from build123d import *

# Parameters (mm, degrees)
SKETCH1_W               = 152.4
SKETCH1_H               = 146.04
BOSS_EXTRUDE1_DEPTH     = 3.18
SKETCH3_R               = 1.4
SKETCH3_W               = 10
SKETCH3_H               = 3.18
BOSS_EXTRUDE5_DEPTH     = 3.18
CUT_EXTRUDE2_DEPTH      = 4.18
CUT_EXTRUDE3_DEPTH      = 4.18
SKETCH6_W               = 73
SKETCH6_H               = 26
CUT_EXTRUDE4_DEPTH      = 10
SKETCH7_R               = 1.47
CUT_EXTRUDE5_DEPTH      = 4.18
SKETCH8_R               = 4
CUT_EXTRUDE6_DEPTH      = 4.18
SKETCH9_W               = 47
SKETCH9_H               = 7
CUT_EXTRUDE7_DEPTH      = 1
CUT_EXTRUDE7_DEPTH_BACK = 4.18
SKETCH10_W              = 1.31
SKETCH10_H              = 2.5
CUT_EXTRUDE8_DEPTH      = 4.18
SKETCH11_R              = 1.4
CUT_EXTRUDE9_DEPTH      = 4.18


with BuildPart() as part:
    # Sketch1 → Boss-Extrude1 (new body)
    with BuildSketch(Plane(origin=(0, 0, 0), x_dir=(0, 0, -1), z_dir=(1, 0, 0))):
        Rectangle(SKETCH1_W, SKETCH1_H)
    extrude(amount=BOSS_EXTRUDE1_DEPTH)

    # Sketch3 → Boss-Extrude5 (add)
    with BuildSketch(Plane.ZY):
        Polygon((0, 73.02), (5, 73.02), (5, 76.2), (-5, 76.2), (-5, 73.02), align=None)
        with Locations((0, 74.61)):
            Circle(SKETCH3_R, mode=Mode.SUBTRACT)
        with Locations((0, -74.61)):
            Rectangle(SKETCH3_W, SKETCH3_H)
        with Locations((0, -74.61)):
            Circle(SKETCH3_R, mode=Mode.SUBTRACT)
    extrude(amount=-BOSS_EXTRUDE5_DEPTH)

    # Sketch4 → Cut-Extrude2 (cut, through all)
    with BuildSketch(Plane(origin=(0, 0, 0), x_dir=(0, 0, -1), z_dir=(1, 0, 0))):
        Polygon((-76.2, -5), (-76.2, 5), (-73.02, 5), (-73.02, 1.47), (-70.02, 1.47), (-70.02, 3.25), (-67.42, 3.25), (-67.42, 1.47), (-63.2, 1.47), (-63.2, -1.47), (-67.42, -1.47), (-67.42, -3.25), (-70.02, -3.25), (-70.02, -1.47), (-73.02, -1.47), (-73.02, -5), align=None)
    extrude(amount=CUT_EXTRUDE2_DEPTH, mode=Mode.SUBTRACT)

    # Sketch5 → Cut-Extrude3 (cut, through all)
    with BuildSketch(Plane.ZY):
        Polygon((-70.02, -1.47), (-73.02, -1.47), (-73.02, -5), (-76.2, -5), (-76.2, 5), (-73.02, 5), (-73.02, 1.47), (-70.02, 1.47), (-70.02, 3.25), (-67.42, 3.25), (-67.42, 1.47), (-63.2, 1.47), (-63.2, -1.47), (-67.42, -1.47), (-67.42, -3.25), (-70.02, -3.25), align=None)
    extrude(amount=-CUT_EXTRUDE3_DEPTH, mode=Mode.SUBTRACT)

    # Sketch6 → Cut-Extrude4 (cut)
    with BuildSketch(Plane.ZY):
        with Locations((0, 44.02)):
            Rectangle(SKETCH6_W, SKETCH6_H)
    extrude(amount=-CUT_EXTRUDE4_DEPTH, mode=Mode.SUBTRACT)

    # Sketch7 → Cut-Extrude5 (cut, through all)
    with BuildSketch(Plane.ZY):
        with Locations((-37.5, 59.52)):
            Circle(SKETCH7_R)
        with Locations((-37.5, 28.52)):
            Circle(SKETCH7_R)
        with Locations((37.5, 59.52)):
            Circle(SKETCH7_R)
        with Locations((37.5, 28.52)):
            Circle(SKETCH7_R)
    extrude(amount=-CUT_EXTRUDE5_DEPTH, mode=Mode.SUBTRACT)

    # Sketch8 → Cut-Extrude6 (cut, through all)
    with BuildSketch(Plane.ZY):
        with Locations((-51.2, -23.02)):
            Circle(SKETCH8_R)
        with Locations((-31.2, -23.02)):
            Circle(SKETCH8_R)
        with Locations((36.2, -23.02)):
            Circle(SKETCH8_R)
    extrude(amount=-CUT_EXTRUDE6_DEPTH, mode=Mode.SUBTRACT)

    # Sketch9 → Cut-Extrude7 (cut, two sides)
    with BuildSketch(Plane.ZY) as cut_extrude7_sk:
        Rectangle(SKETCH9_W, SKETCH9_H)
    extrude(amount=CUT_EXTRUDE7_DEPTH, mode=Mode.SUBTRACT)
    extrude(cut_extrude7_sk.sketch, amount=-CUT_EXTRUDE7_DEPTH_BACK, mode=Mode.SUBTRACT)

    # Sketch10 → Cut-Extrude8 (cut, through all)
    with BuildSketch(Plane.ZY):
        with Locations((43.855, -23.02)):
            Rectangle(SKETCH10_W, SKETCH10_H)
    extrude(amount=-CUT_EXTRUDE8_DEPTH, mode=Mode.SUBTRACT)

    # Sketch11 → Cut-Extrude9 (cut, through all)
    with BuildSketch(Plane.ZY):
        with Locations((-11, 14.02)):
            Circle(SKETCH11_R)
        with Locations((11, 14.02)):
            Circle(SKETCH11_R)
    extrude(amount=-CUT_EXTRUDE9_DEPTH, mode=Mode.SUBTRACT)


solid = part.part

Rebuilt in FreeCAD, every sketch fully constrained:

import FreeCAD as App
import Part
import Sketcher

V = App.Vector
Q = App.Units.Quantity


def add_polygon(sketch, points):
    """Adds a closed chain of lines whose ends are joined by coincident constraints."""
    first, n = sketch.GeometryCount, len(points)
    for a, b in zip(points, points[1:] + points[:1]):
        sketch.addGeometry(Part.LineSegment(App.Vector(*a, 0), App.Vector(*b, 0)), False)
    for i in range(n):
        sketch.addConstraint(Sketcher.Constraint("Coincident", first + i, 2, first + (i + 1) % n, 1))

doc = App.newDocument("Part")
params = doc.addObject("Spreadsheet::Sheet", "Params")
for row, (alias, value) in enumerate([
    ("sketch1_height", "152.4 mm"),
    ("sketch1_width", "146.04 mm"),
    ("pad1_length", "3.18 mm"),
    ("sketch2_diameter", "2.8 mm"),
    ("sketch2_height", "10 mm"),
    ("sketch2_width", "3.18 mm"),
    ("pad2_length", "3.18 mm"),
    ("sketch3_width", "10 mm"),
    ("sketch3_height", "3 mm"),
    ("sketch3_height2", "2.6 mm"),
    ("sketch3_width2", "3.53 mm"),
    ("sketch3_width3", "1.78 mm"),
    ("sketch4_width", "10 mm"),
    ("sketch4_height", "3 mm"),
    ("sketch4_height2", "2.6 mm"),
    ("sketch4_width2", "1.78 mm"),
    ("sketch4_width3", "2.94 mm"),
    ("sketch5_width", "26 mm"),
    ("sketch5_height", "73 mm"),
    ("pocket3_length", "10 mm"),
    ("sketch6_diameter", "2.94 mm"),
    ("sketch7_diameter", "8 mm"),
    ("sketch8_width", "7 mm"),
    ("sketch8_height", "47 mm"),
    ("sketch9_width", "2.5 mm"),
    ("sketch9_height", "1.31 mm"),
    ("sketch10_diameter", "2.8 mm"),
], start=1):
    params.set(f"A{row}", alias)
    params.set(f"B{row}", "=" + value)
    params.setAlias(f"B{row}", alias)

body = doc.addObject("PartDesign::Body", "Body")

sketch1 = doc.addObject("Sketcher::SketchObject", "Sketch")
body.addObject(sketch1)
sketch1.AttachmentSupport = (doc.YZ_Plane, [""])
sketch1.MapMode = "FlatFace"
add_polygon(sketch1, [(73, 76), (-73, 76), (-73, -76), (73, -76)])
sketch1.addConstraint(Sketcher.Constraint("Horizontal", 0))
sketch1.addConstraint(Sketcher.Constraint("Vertical", 1))
sketch1.addConstraint(Sketcher.Constraint("Horizontal", 2))
sketch1.addConstraint(Sketcher.Constraint("Vertical", 3))
sketch1.addConstraint(Sketcher.Constraint("Symmetric", 0, 2, 2, 2, -1, 1))
sketch1.addConstraint(Sketcher.Constraint("DistanceY", 1, 2, 1, 1, Q("152.4 mm")))
sketch1.addConstraint(Sketcher.Constraint("DistanceX", 0, 2, 0, 1, Q("146.04 mm")))
sketch1.setExpression("Constraints[9]", "Params.sketch1_height")
sketch1.setExpression("Constraints[10]", "Params.sketch1_width")
pad1 = doc.addObject("PartDesign::Pad", "Pad")
body.addObject(pad1)
pad1.Profile = sketch1
pad1.setExpression("Length", "Params.pad1_length")

sketch2 = doc.addObject("Sketcher::SketchObject", "Sketch001")
body.addObject(sketch2)
sketch2.AttachmentSupport = (doc.YZ_Plane, [""])
sketch2.MapMode = "FlatFace"
add_polygon(sketch2, [(73, 5), (76.2, 5), (76.2, -5), (73, -5)])
sketch2.addGeometry(Part.Circle(V(74.6, 0, 0), V(0, 0, 1), 1.4), False)
add_polygon(sketch2, [(-73, -5), (-76.2, -5), (-76.2, 5), (-73, 5)])
sketch2.addGeometry(Part.Circle(V(-74.6, 0, 0), V(0, 0, 1), 1.4), False)
sketch2.addConstraint(Sketcher.Constraint("Horizontal", 0))
sketch2.addConstraint(Sketcher.Constraint("Vertical", 1))
sketch2.addConstraint(Sketcher.Constraint("Horizontal", 2))
sketch2.addConstraint(Sketcher.Constraint("Vertical", 3))
sketch2.addConstraint(Sketcher.Constraint("Horizontal", 5))
sketch2.addConstraint(Sketcher.Constraint("Vertical", 6))
sketch2.addConstraint(Sketcher.Constraint("Horizontal", 7))
sketch2.addConstraint(Sketcher.Constraint("Vertical", 8))
sketch2.addConstraint(Sketcher.Constraint("Equal", 4, 9))
sketch2.addConstraint(Sketcher.Constraint("Symmetric", 4, 3, 9, 3, -1, 1))
sketch2.addConstraint(Sketcher.Constraint("Symmetric", 0, 2, 5, 2, -1, 1))
sketch2.addConstraint(Sketcher.Constraint("Symmetric", 2, 2, 7, 2, -1, 1))
sketch2.addConstraint(Sketcher.Constraint("PointOnObject", 4, 3, -1))
sketch2.addConstraint(Sketcher.Constraint("Horizontal", 2, 2, 5, 2))
sketch2.addConstraint(Sketcher.Constraint("Diameter", 4, Q("2.8 mm")))
sketch2.addConstraint(Sketcher.Constraint("DistanceY", 1, 2, 1, 1, Q("10 mm")))
sketch2.addConstraint(Sketcher.Constraint("DistanceX", 0, 1, 0, 2, Q("3.18 mm")))
sketch2.addConstraint(Sketcher.Constraint("DistanceX", -1, 1, 0, 2, Q("76.2 mm")))
sketch2.addConstraint(Sketcher.Constraint("DistanceX", -1, 1, 4, 3, Q("74.61 mm")))
sketch2.setExpression("Constraints[22]", "Params.sketch2_diameter")
sketch2.setExpression("Constraints[23]", "Params.sketch2_height")
sketch2.setExpression("Constraints[24]", "Params.sketch2_width")
pad2 = doc.addObject("PartDesign::Pad", "Pad001")
body.addObject(pad2)
pad2.Profile = sketch2
pad2.setExpression("Length", "Params.pad2_length")

sketch3 = doc.addObject("Sketcher::SketchObject", "Sketch002")
body.addObject(sketch3)
sketch3.AttachmentSupport = (doc.YZ_Plane, [""])
sketch3.MapMode = "FlatFace"
add_polygon(sketch3, [(5, 76.2), (-5, 76.2), (-5, 73), (-1.5, 73), (-1.5, 70), (-3.2, 70), (-3.2, 67.4), (-1.5, 67.4), (-1.5, 63.2), (1.5, 63.2), (1.5, 67.4), (3.2, 67.4), (3.2, 70), (1.5, 70), (1.5, 73), (5, 73)])
sketch3.addConstraint(Sketcher.Constraint("Horizontal", 0))
sketch3.addConstraint(Sketcher.Constraint("Vertical", 1))
sketch3.addConstraint(Sketcher.Constraint("Horizontal", 2))
sketch3.addConstraint(Sketcher.Constraint("Vertical", 3))
sketch3.addConstraint(Sketcher.Constraint("Horizontal", 4))
sketch3.addConstraint(Sketcher.Constraint("Vertical", 5))
sketch3.addConstraint(Sketcher.Constraint("Horizontal", 6))
sketch3.addConstraint(Sketcher.Constraint("Vertical", 7))
sketch3.addConstraint(Sketcher.Constraint("Horizontal", 8))
sketch3.addConstraint(Sketcher.Constraint("Vertical", 9))
sketch3.addConstraint(Sketcher.Constraint("Horizontal", 10))
sketch3.addConstraint(Sketcher.Constraint("Vertical", 11))
sketch3.addConstraint(Sketcher.Constraint("Horizontal", 12))
sketch3.addConstraint(Sketcher.Constraint("Vertical", 13))
sketch3.addConstraint(Sketcher.Constraint("Horizontal", 14))
sketch3.addConstraint(Sketcher.Constraint("Vertical", 15))
sketch3.addConstraint(Sketcher.Constraint("Symmetric", 6, 2, 9, 2, -2))
sketch3.addConstraint(Sketcher.Constraint("Symmetric", 4, 2, 11, 2, -2))
sketch3.addConstraint(Sketcher.Constraint("Symmetric", 2, 2, 13, 2, -2))
sketch3.addConstraint(Sketcher.Constraint("Vertical", 3, 2, 6, 2))
sketch3.addConstraint(Sketcher.Constraint("Equal", 2, 14))
sketch3.addConstraint(Sketcher.Constraint("DistanceX", 0, 2, 0, 1, Q("10 mm")))
sketch3.addConstraint(Sketcher.Constraint("DistanceY", 3, 2, 3, 1, Q("3 mm")))
sketch3.addConstraint(Sketcher.Constraint("DistanceY", 5, 2, 5, 1, Q("2.6 mm")))
sketch3.addConstraint(Sketcher.Constraint("DistanceX", 2, 1, 2, 2, Q("3.53 mm")))
sketch3.addConstraint(Sketcher.Constraint("DistanceX", 4, 2, 4, 1, Q("1.78 mm")))
sketch3.addConstraint(Sketcher.Constraint("DistanceY", 1, 2, 1, 1, Q("3.18 mm")))
sketch3.addConstraint(Sketcher.Constraint("DistanceY", 7, 2, 7, 1, Q("4.22 mm")))
sketch3.addConstraint(Sketcher.Constraint("DistanceY", -1, 1, 0, 2, Q("76.2 mm")))
sketch3.setExpression("Constraints[37]", "Params.sketch3_width")
sketch3.setExpression("Constraints[38]", "Params.sketch3_height")
sketch3.setExpression("Constraints[39]", "Params.sketch3_height2")
sketch3.setExpression("Constraints[40]", "Params.sketch3_width2")
sketch3.setExpression("Constraints[41]", "Params.sketch3_width3")
pocket1 = doc.addObject("PartDesign::Pocket", "Pocket")
body.addObject(pocket1)
pocket1.Profile = sketch3
pocket1.Type = "ThroughAll"
pocket1.Reversed = True

sketch4 = doc.addObject("Sketcher::SketchObject", "Sketch003")
body.addObject(sketch4)
sketch4.AttachmentSupport = (doc.YZ_Plane, [""])
sketch4.MapMode = "FlatFace"
add_polygon(sketch4, [(-1.5, -73), (-1.5, -70), (-3.2, -70), (-3.2, -67.4), (-1.5, -67.4), (-1.5, -63.2), (1.5, -63.2), (1.5, -67.4), (3.2, -67.4), (3.2, -70), (1.5, -70), (1.5, -73), (5, -73), (5, -76.2), (-5, -76.2), (-5, -73)])
sketch4.addConstraint(Sketcher.Constraint("Vertical", 0))
sketch4.addConstraint(Sketcher.Constraint("Horizontal", 1))
sketch4.addConstraint(Sketcher.Constraint("Vertical", 2))
sketch4.addConstraint(Sketcher.Constraint("Horizontal", 3))
sketch4.addConstraint(Sketcher.Constraint("Vertical", 4))
sketch4.addConstraint(Sketcher.Constraint("Horizontal", 5))
sketch4.addConstraint(Sketcher.Constraint("Vertical", 6))
sketch4.addConstraint(Sketcher.Constraint("Horizontal", 7))
sketch4.addConstraint(Sketcher.Constraint("Vertical", 8))
sketch4.addConstraint(Sketcher.Constraint("Horizontal", 9))
sketch4.addConstraint(Sketcher.Constraint("Vertical", 10))
sketch4.addConstraint(Sketcher.Constraint("Horizontal", 11))
sketch4.addConstraint(Sketcher.Constraint("Vertical", 12))
sketch4.addConstraint(Sketcher.Constraint("Horizontal", 13))
sketch4.addConstraint(Sketcher.Constraint("Vertical", 14))
sketch4.addConstraint(Sketcher.Constraint("Horizontal", 15))
sketch4.addConstraint(Sketcher.Constraint("Symmetric", 3, 2, 6, 2, -2))
sketch4.addConstraint(Sketcher.Constraint("Symmetric", 1, 2, 8, 2, -2))
sketch4.addConstraint(Sketcher.Constraint("Symmetric", 11, 2, 14, 2, -2))
sketch4.addConstraint(Sketcher.Constraint("Vertical", 0, 2, 3, 2))
sketch4.addConstraint(Sketcher.Constraint("Vertical", 6, 2, 9, 2))
sketch4.addConstraint(Sketcher.Constraint("DistanceX", 13, 2, 13, 1, Q("10 mm")))
sketch4.addConstraint(Sketcher.Constraint("DistanceY", 0, 1, 0, 2, Q("3 mm")))
sketch4.addConstraint(Sketcher.Constraint("DistanceY", 2, 1, 2, 2, Q("2.6 mm")))
sketch4.addConstraint(Sketcher.Constraint("DistanceX", 1, 2, 1, 1, Q("1.78 mm")))
sketch4.addConstraint(Sketcher.Constraint("DistanceX", 5, 1, 5, 2, Q("2.94 mm")))
sketch4.addConstraint(Sketcher.Constraint("DistanceY", 4, 1, 4, 2, Q("4.22 mm")))
sketch4.addConstraint(Sketcher.Constraint("DistanceY", 12, 2, 12, 1, Q("3.18 mm")))
sketch4.addConstraint(Sketcher.Constraint("DistanceY", 4, 2, -1, 1, Q("63.2 mm")))
sketch4.setExpression("Constraints[37]", "Params.sketch4_width")
sketch4.setExpression("Constraints[38]", "Params.sketch4_height")
sketch4.setExpression("Constraints[39]", "Params.sketch4_height2")
sketch4.setExpression("Constraints[40]", "Params.sketch4_width2")
sketch4.setExpression("Constraints[41]", "Params.sketch4_width3")
pocket2 = doc.addObject("PartDesign::Pocket", "Pocket001")
body.addObject(pocket2)
pocket2.Profile = sketch4
pocket2.Type = "ThroughAll"
pocket2.Reversed = True

sketch5 = doc.addObject("Sketcher::SketchObject", "Sketch004")
body.addObject(sketch5)
sketch5.AttachmentSupport = (doc.YZ_Plane, [""])
sketch5.MapMode = "FlatFace"
add_polygon(sketch5, [(57, -36), (31, -36), (31, 36), (57, 36)])
sketch5.addConstraint(Sketcher.Constraint("Horizontal", 0))
sketch5.addConstraint(Sketcher.Constraint("Vertical", 1))
sketch5.addConstraint(Sketcher.Constraint("Horizontal", 2))
sketch5.addConstraint(Sketcher.Constraint("Vertical", 3))
sketch5.addConstraint(Sketcher.Constraint("DistanceX", 0, 2, 0, 1, Q("26 mm")))
sketch5.addConstraint(Sketcher.Constraint("DistanceY", 1, 1, 1, 2, Q("73 mm")))
sketch5.addConstraint(Sketcher.Constraint("DistanceY", 0, 2, -1, 1, Q("36.5 mm")))
sketch5.addConstraint(Sketcher.Constraint("DistanceX", -1, 1, 0, 2, Q("31.02 mm")))
sketch5.setExpression("Constraints[8]", "Params.sketch5_width")
sketch5.setExpression("Constraints[9]", "Params.sketch5_height")
pocket3 = doc.addObject("PartDesign::Pocket", "Pocket002")
body.addObject(pocket3)
pocket3.Profile = sketch5
pocket3.setExpression("Length", "Params.pocket3_length")
pocket3.Reversed = True

sketch6 = doc.addObject("Sketcher::SketchObject", "Sketch005")
body.addObject(sketch6)
sketch6.AttachmentSupport = (doc.YZ_Plane, [""])
sketch6.MapMode = "FlatFace"
sketch6.addGeometry(Part.Circle(V(59.5, -37.5, 0), V(0, 0, 1), 1.5), False)
sketch6.addGeometry(Part.Circle(V(28.5, -37.5, 0), V(0, 0, 1), 1.5), False)
sketch6.addGeometry(Part.Circle(V(59.5, 37.5, 0), V(0, 0, 1), 1.5), False)
sketch6.addGeometry(Part.Circle(V(28.5, 37.5, 0), V(0, 0, 1), 1.5), False)
sketch6.addConstraint(Sketcher.Constraint("Equal", 0, 1))
sketch6.addConstraint(Sketcher.Constraint("Equal", 1, 2))
sketch6.addConstraint(Sketcher.Constraint("Equal", 2, 3))
sketch6.addConstraint(Sketcher.Constraint("Symmetric", 0, 3, 2, 3, -1))
sketch6.addConstraint(Sketcher.Constraint("Symmetric", 1, 3, 3, 3, -1))
sketch6.addConstraint(Sketcher.Constraint("Horizontal", 0, 3, 1, 3))
sketch6.addConstraint(Sketcher.Constraint("Diameter", 0, Q("2.94 mm")))
sketch6.addConstraint(Sketcher.Constraint("DistanceX", 1, 3, 0, 3, Q("31 mm")))
sketch6.addConstraint(Sketcher.Constraint("DistanceY", 0, 3, 2, 3, Q("75 mm")))
sketch6.addConstraint(Sketcher.Constraint("DistanceX", -1, 1, 0, 3, Q("59.52 mm")))
sketch6.setExpression("Constraints[6]", "Params.sketch6_diameter")
pocket4 = doc.addObject("PartDesign::Pocket", "Pocket003")
body.addObject(pocket4)
pocket4.Profile = sketch6
pocket4.Type = "ThroughAll"
pocket4.Reversed = True

sketch7 = doc.addObject("Sketcher::SketchObject", "Sketch006")
body.addObject(sketch7)
sketch7.AttachmentSupport = (doc.YZ_Plane, [""])
sketch7.MapMode = "FlatFace"
sketch7.addGeometry(Part.Circle(V(-23, -51.2, 0), V(0, 0, 1), 4), False)
sketch7.addGeometry(Part.Circle(V(-23, -31.2, 0), V(0, 0, 1), 4), False)
sketch7.addGeometry(Part.Circle(V(-23, 36.2, 0), V(0, 0, 1), 4), False)
sketch7.addConstraint(Sketcher.Constraint("Equal", 0, 1))
sketch7.addConstraint(Sketcher.Constraint("Equal", 1, 2))
sketch7.addConstraint(Sketcher.Constraint("Vertical", 0, 3, 1, 3))
sketch7.addConstraint(Sketcher.Constraint("Vertical", 1, 3, 2, 3))
sketch7.addConstraint(Sketcher.Constraint("Diameter", 0, Q("8 mm")))
sketch7.addConstraint(Sketcher.Constraint("DistanceY", 0, 3, 1, 3, Q("20 mm")))
sketch7.addConstraint(Sketcher.Constraint("DistanceY", 0, 3, -1, 1, Q("51.2 mm")))
sketch7.addConstraint(Sketcher.Constraint("DistanceY", -1, 1, 2, 3, Q("36.2 mm")))
sketch7.addConstraint(Sketcher.Constraint("DistanceX", 0, 3, -1, 1, Q("23.02 mm")))
sketch7.setExpression("Constraints[4]", "Params.sketch7_diameter")
pocket5 = doc.addObject("PartDesign::Pocket", "Pocket004")
body.addObject(pocket5)
pocket5.Profile = sketch7
pocket5.Type = "ThroughAll"
pocket5.Reversed = True

sketch8 = doc.addObject("Sketcher::SketchObject", "Sketch007")
body.addObject(sketch8)
sketch8.AttachmentSupport = (doc.YZ_Plane, [""])
sketch8.MapMode = "FlatFace"
add_polygon(sketch8, [(4, -24), (-4, -24), (-4, 24), (4, 24)])
sketch8.addConstraint(Sketcher.Constraint("Horizontal", 0))
sketch8.addConstraint(Sketcher.Constraint("Vertical", 1))
sketch8.addConstraint(Sketcher.Constraint("Horizontal", 2))
sketch8.addConstraint(Sketcher.Constraint("Vertical", 3))
sketch8.addConstraint(Sketcher.Constraint("Symmetric", 0, 2, 2, 2, -1, 1))
sketch8.addConstraint(Sketcher.Constraint("DistanceX", 0, 2, 0, 1, Q("7 mm")))
sketch8.addConstraint(Sketcher.Constraint("DistanceY", 1, 1, 1, 2, Q("47 mm")))
sketch8.setExpression("Constraints[9]", "Params.sketch8_width")
sketch8.setExpression("Constraints[10]", "Params.sketch8_height")
pocket6 = doc.addObject("PartDesign::Pocket", "Pocket005")
body.addObject(pocket6)
pocket6.Profile = sketch8
pocket6.Type = "ThroughAll"
pocket6.Midplane = True

sketch9 = doc.addObject("Sketcher::SketchObject", "Sketch008")
body.addObject(sketch9)
sketch9.AttachmentSupport = (doc.YZ_Plane, [""])
sketch9.MapMode = "FlatFace"
add_polygon(sketch9, [(-21.8, 43.2), (-24.3, 43.2), (-24.3, 44.5), (-21.8, 44.5)])
sketch9.addConstraint(Sketcher.Constraint("Horizontal", 0))
sketch9.addConstraint(Sketcher.Constraint("Vertical", 1))
sketch9.addConstraint(Sketcher.Constraint("Horizontal", 2))
sketch9.addConstraint(Sketcher.Constraint("Vertical", 3))
sketch9.addConstraint(Sketcher.Constraint("DistanceX", 0, 2, 0, 1, Q("2.5 mm")))
sketch9.addConstraint(Sketcher.Constraint("DistanceY", 1, 1, 1, 2, Q("1.31 mm")))
sketch9.addConstraint(Sketcher.Constraint("DistanceY", -1, 1, 0, 2, Q("43.2 mm")))
sketch9.addConstraint(Sketcher.Constraint("DistanceX", 0, 2, -1, 1, Q("24.27 mm")))
sketch9.setExpression("Constraints[8]", "Params.sketch9_width")
sketch9.setExpression("Constraints[9]", "Params.sketch9_height")
pocket7 = doc.addObject("PartDesign::Pocket", "Pocket006")
body.addObject(pocket7)
pocket7.Profile = sketch9
pocket7.Type = "ThroughAll"
pocket7.Reversed = True

sketch10 = doc.addObject("Sketcher::SketchObject", "Sketch009")
body.addObject(sketch10)
sketch10.AttachmentSupport = (doc.YZ_Plane, [""])
sketch10.MapMode = "FlatFace"
sketch10.addGeometry(Part.Circle(V(14, -11, 0), V(0, 0, 1), 1.4), False)
sketch10.addGeometry(Part.Circle(V(14, 11, 0), V(0, 0, 1), 1.4), False)
sketch10.addConstraint(Sketcher.Constraint("Equal", 0, 1))
sketch10.addConstraint(Sketcher.Constraint("Symmetric", 0, 3, 1, 3, -1))
sketch10.addConstraint(Sketcher.Constraint("Diameter", 0, Q("2.8 mm")))
sketch10.addConstraint(Sketcher.Constraint("DistanceY", 0, 3, -1, 1, Q("11 mm")))
sketch10.addConstraint(Sketcher.Constraint("DistanceX", -1, 1, 0, 3, Q("14.02 mm")))
sketch10.setExpression("Constraints[2]", "Params.sketch10_diameter")
pocket8 = doc.addObject("PartDesign::Pocket", "Pocket007")
body.addObject(pocket8)
pocket8.Profile = sketch10
pocket8.Type = "ThroughAll"
pocket8.Reversed = True

doc.recompute()
